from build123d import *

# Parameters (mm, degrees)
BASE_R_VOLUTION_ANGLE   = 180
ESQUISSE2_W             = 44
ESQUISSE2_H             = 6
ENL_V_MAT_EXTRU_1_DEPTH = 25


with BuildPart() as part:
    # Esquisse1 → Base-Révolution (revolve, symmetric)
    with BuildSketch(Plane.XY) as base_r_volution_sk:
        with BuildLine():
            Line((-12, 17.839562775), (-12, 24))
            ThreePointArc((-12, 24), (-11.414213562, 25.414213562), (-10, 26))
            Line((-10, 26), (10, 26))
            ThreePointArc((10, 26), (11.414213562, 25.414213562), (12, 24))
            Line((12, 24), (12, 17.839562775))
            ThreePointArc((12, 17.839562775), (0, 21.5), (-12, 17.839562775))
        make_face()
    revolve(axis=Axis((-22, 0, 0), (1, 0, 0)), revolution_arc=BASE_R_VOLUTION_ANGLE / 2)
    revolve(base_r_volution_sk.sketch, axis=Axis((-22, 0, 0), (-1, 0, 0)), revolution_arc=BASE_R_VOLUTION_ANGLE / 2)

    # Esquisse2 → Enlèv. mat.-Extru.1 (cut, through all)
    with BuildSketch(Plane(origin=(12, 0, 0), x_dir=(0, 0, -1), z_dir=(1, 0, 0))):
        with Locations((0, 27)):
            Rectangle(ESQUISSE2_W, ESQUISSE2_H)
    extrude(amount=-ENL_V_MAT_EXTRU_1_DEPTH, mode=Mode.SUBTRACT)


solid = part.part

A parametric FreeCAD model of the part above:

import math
import FreeCAD as App
import Part
import Sketcher
from FreeCAD import Vector
Q = App.Units.Quantity

doc = App.newDocument("Part")
body = doc.addObject("PartDesign::Body", "Body")

sketch1 = doc.addObject("Sketcher::SketchObject", "Sketch")
body.addObject(sketch1)
sketch1.AttachmentSupport = (doc.XY_Plane, [""])
sketch1.MapMode = "FlatFace"
sketch1.addGeometry([
    Part.LineSegment(Vector(-12, 24, 0), Vector(-12, 17.8, 0)),
    Part.ArcOfCircle(Part.Circle(Vector(0, 0, 0), Vector(0, 0, 1), 21.5), math.radians(56), math.radians(124)),
    Part.LineSegment(Vector(12, 17.8, 0), Vector(12, 24, 0)),
    Part.ArcOfCircle(Part.Circle(Vector(10, 24, 0), Vector(0, 0, 1), 2), math.radians(0), math.radians(90)),
    Part.LineSegment(Vector(10, 26, 0), Vector(-10, 26, 0)),
    Part.ArcOfCircle(Part.Circle(Vector(-10, 24, 0), Vector(0, 0, 1), 2), math.radians(90), math.radians(180)),
], False)
sketch1.addConstraint([
    Sketcher.Constraint("Coincident", 0, 2, 1, 2),
    Sketcher.Constraint("Coincident", 1, 1, 2, 1),
    Sketcher.Constraint("Tangent", 2, 2, 3, 1),
    Sketcher.Constraint("Tangent", 3, 2, 4, 1),
    Sketcher.Constraint("Tangent", 4, 2, 5, 1),
    Sketcher.Constraint("Tangent", 5, 2, 0, 1),
    Sketcher.Constraint("Vertical", 0),
    Sketcher.Constraint("Vertical", 2),
    Sketcher.Constraint("Horizontal", 4),
    Sketcher.Constraint("Coincident", 1, 3, -1, 1),
    Sketcher.Constraint("Equal", 3, 5),
    Sketcher.Constraint("Horizontal", 0, 2, 1, 1),
    Sketcher.Constraint("Radius", 3, Q("2 mm")),
    Sketcher.Constraint("Radius", 1, Q("21.5 mm")),
    Sketcher.Constraint("DistanceX", 4, 2, 4, 1, Q("20 mm")),
    Sketcher.Constraint("DistanceY", -1, 1, 3, 3, Q("24 mm")),
])
revolution = doc.addObject("PartDesign::Revolution", "Revolution")
body.addObject(revolution)
revolution.Profile = sketch1
revolution.ReferenceAxis = (sketch1, ["H_Axis"])
revolution.Angle = 90

sketch2 = doc.addObject("Sketcher::SketchObject", "Sketch001")
body.addObject(sketch2)
sketch2.AttachmentSupport = (doc.XY_Plane, [""])
sketch2.MapMode = "FlatFace"
sketch2.addGeometry([
    Part.LineSegment(Vector(-12, 24, 0), Vector(-12, 17.8, 0)),
    Part.ArcOfCircle(Part.Circle(Vector(0, 0, 0), Vector(0, 0, 1), 21.5), math.radians(56), math.radians(124)),
    Part.LineSegment(Vector(12, 17.8, 0), Vector(12, 24, 0)),
    Part.ArcOfCircle(Part.Circle(Vector(10, 24, 0), Vector(0, 0, 1), 2), math.radians(0), math.radians(90)),
    Part.LineSegment(Vector(10, 26, 0), Vector(-10, 26, 0)),
    Part.ArcOfCircle(Part.Circle(Vector(-10, 24, 0), Vector(0, 0, 1), 2), math.radians(90), math.radians(180)),
], False)
sketch2.addConstraint([
    Sketcher.Constraint("Coincident", 0, 2, 1, 2),
    Sketcher.Constraint("Coincident", 1, 1, 2, 1),
    Sketcher.Constraint("Tangent", 2, 2, 3, 1),
    Sketcher.Constraint("Tangent", 3, 2, 4, 1),
    Sketcher.Constraint("Tangent", 4, 2, 5, 1),
    Sketcher.Constraint("Tangent", 5, 2, 0, 1),
    Sketcher.Constraint("Vertical", 0),
    Sketcher.Constraint("Vertical", 2),
    Sketcher.Constraint("Horizontal", 4),
    Sketcher.Constraint("Coincident", 1, 3, -1, 1),
    Sketcher.Constraint("Equal", 3, 5),
    Sketcher.Constraint("Horizontal", 0, 2, 1, 1),
    Sketcher.Constraint("Radius", 3, Q("2 mm")),
    Sketcher.Constraint("Radius", 1, Q("21.5 mm")),
    Sketcher.Constraint("DistanceX", 4, 2, 4, 1, Q("20 mm")),
    Sketcher.Constraint("DistanceY", -1, 1, 3, 3, Q("24 mm")),
])
revolution2 = doc.addObject("PartDesign::Revolution", "Revolution001")
body.addObject(revolution2)
revolution2.Profile = sketch2
revolution2.ReferenceAxis = (sketch2, ["H_Axis"])
revolution2.Angle = 90
revolution2.Reversed = True

sketch3 = doc.addObject("Sketcher::SketchObject", "Sketch002")
body.addObject(sketch3)
sketch3.AttachmentSupport = (doc.YZ_Plane, [""])
sketch3.MapMode = "FlatFace"
sketch3.AttachmentOffset = App.Placement(Vector(0, 0, 12), App.Rotation())
sketch3.addGeometry([
    Part.LineSegment(Vector(30, 22, 0), Vector(24, 22, 0)),
    Part.LineSegment(Vector(24, 22, 0), Vector(24, -22, 0)),
    Part.LineSegment(Vector(24, -22, 0), Vector(30, -22, 0)),
    Part.LineSegment(Vector(30, -22, 0), Vector(30, 22, 0)),
], False)
sketch3.addConstraint([
    Sketcher.Constraint("Coincident", 0, 2, 1, 1),
    Sketcher.Constraint("Coincident", 1, 2, 2, 1),
    Sketcher.Constraint("Coincident", 2, 2, 3, 1),
    Sketcher.Constraint("Coincident", 3, 2, 0, 1),
    Sketcher.Constraint("Horizontal", 0),
    Sketcher.Constraint("Vertical", 1),
    Sketcher.Constraint("Horizontal", 2),
    Sketcher.Constraint("Vertical", 3),
    Sketcher.Constraint("DistanceX", 0, 2, 0, 1, Q("6 mm")),
    Sketcher.Constraint("DistanceY", 1, 2, 1, 1, Q("44 mm")),
    Sketcher.Constraint("DistanceX", -1, 1, 0, 2, Q("24 mm")),
    Sketcher.Constraint("DistanceY", -1, 1, 0, 2, Q("22 mm")),
])
pocket1 = doc.addObject("PartDesign::Pocket", "Pocket")
body.addObject(pocket1)
pocket1.Profile = sketch3
pocket1.Type = "ThroughAll"

doc.recompute()
